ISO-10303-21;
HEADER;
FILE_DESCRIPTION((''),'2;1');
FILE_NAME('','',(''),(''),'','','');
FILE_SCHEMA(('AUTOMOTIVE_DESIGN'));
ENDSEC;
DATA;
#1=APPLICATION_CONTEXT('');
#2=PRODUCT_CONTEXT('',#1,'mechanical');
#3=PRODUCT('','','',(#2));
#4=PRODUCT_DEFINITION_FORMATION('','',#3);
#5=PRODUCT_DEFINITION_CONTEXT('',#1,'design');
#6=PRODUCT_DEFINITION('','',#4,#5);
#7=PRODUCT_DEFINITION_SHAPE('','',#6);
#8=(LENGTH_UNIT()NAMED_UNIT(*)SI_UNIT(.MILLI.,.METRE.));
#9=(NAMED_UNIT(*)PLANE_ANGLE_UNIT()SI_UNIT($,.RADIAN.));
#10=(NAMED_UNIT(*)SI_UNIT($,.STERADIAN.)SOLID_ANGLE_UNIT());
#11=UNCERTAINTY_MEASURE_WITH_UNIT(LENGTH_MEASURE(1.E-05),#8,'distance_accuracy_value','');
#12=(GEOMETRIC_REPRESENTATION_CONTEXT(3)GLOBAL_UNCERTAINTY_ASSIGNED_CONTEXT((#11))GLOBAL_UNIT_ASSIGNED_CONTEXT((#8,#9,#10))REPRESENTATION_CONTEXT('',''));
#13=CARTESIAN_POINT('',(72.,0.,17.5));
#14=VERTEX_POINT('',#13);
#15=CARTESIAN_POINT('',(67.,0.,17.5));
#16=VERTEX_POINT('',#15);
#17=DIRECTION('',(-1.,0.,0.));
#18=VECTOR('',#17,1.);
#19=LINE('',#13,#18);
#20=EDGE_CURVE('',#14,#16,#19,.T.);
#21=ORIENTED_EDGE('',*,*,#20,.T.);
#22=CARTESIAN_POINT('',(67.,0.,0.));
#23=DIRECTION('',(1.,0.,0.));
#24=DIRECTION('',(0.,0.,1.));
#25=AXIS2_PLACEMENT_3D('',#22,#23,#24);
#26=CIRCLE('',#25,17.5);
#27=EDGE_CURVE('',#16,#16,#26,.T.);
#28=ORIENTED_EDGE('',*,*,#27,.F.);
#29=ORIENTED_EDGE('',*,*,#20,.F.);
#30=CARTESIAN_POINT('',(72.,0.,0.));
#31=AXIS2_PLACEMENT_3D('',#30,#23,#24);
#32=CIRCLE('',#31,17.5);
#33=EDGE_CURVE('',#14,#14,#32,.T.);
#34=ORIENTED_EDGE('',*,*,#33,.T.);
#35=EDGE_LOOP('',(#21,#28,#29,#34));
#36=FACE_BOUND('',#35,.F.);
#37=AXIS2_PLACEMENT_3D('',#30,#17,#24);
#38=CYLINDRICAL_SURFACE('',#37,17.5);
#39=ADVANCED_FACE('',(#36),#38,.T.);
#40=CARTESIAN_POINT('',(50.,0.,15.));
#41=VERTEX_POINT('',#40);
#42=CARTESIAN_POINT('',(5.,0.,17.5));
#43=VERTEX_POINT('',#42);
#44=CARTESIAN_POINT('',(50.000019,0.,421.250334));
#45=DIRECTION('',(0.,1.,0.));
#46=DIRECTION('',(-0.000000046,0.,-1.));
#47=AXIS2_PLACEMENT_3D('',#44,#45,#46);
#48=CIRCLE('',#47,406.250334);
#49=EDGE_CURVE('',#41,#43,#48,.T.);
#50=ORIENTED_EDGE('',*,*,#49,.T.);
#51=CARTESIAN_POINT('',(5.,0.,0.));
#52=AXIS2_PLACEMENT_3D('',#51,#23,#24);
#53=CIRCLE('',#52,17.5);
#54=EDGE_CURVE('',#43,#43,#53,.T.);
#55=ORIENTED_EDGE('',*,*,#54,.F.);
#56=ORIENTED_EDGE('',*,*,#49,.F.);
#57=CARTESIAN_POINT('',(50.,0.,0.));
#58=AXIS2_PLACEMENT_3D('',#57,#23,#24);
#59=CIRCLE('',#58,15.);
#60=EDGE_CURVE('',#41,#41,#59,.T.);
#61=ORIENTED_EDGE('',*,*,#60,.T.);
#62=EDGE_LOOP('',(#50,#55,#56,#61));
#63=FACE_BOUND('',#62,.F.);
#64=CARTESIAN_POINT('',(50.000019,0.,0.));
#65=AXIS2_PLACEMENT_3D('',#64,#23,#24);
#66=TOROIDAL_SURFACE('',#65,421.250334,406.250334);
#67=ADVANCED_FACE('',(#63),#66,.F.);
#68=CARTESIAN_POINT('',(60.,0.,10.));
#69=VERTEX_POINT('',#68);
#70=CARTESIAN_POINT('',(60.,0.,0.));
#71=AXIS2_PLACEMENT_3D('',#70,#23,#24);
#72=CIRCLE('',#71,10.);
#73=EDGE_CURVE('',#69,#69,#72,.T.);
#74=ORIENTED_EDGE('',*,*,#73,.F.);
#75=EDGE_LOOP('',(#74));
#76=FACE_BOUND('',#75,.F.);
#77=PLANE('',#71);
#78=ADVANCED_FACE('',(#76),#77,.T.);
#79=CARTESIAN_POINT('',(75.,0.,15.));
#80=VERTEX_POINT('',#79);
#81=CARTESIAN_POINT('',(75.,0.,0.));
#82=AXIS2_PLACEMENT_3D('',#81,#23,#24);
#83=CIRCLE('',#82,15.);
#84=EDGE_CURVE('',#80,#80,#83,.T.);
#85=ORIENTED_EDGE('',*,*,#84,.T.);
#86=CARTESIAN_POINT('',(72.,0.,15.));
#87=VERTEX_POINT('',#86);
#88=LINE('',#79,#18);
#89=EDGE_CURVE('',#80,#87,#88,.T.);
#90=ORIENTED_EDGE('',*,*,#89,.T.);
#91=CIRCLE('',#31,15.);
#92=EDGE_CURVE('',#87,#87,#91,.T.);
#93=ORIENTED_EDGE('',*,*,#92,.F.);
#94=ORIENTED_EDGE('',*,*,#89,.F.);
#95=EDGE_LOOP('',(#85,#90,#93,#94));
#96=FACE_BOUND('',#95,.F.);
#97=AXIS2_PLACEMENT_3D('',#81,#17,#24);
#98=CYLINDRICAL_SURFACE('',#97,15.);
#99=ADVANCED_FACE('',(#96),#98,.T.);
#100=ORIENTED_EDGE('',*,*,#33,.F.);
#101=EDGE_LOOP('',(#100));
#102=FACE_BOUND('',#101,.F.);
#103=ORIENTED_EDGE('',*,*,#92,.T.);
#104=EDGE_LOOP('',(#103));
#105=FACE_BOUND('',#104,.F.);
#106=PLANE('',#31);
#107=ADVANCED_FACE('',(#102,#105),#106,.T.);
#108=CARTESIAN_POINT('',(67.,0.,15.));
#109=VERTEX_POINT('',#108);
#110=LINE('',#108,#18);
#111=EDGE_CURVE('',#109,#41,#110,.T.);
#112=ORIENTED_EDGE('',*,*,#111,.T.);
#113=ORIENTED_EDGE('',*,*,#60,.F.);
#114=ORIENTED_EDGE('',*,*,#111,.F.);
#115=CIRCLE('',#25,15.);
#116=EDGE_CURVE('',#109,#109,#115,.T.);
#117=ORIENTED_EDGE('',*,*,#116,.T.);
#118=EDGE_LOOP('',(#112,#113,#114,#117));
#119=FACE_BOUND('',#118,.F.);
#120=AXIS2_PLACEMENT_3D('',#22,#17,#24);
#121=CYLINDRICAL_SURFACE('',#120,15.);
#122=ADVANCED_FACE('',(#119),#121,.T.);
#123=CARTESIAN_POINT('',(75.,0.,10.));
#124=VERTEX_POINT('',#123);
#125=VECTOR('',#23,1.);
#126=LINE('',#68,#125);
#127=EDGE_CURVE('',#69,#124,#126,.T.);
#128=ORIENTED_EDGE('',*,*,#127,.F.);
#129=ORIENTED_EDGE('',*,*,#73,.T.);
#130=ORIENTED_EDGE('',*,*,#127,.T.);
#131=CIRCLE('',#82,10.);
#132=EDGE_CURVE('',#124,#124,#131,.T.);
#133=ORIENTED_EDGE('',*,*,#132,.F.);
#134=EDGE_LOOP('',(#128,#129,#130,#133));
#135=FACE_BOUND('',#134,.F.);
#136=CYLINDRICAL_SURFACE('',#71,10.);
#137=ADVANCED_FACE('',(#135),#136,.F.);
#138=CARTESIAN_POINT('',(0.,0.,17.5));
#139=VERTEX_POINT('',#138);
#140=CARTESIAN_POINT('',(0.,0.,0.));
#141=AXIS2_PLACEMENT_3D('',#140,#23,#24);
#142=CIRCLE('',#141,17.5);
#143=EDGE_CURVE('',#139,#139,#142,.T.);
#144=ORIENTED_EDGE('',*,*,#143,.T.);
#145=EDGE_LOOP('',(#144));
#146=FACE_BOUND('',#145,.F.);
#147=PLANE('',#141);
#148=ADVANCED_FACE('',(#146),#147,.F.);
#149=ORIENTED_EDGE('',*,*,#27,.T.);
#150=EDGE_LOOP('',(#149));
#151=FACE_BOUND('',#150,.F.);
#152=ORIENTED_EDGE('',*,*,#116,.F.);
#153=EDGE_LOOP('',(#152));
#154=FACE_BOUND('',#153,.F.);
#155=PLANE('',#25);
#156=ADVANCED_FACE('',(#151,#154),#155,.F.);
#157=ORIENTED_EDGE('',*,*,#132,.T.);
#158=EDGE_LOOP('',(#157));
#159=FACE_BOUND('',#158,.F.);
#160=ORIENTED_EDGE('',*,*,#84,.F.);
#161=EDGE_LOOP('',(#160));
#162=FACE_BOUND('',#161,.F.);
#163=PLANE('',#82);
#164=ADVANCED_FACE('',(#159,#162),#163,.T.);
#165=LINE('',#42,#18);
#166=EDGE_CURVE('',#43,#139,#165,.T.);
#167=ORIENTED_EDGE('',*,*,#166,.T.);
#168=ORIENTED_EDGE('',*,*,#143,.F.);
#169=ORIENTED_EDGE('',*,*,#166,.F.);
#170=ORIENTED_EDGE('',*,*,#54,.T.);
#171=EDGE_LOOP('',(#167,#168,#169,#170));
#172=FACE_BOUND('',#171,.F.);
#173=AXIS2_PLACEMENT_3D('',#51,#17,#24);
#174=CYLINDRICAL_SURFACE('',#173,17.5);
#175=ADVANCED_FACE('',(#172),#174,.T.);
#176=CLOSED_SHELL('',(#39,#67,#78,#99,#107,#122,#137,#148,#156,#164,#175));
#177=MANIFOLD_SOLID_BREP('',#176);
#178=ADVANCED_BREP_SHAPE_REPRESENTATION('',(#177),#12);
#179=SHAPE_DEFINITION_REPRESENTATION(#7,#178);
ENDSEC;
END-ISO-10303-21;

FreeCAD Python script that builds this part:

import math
import FreeCAD as App
import Part
import Sketcher

V = App.Vector

doc = App.newDocument("Part")
body = doc.addObject("PartDesign::Body", "Body")

sketch1 = body.newObject("Sketcher::SketchObject", "Sketch")
sketch1.AttachmentSupport = (doc.getObject("XZ_Plane"), [""])
sketch1.MapMode = "FlatFace"
sketch1.addGeometry(Part.LineSegment(V(0, 17.5, 0), V(0, 0, 0)), False)
sketch1.addGeometry(Part.LineSegment(V(0, 0, 0), V(60, 0, 0)), False)
sketch1.addGeometry(Part.LineSegment(V(60, 0, 0), V(60, 10, 0)), False)
sketch1.addGeometry(Part.LineSegment(V(60, 10, 0), V(75, 10, 0)), False)
sketch1.addGeometry(Part.LineSegment(V(75, 10, 0), V(75, 15, 0)), False)
sketch1.addGeometry(Part.LineSegment(V(75, 15, 0), V(72, 15, 0)), False)
sketch1.addGeometry(Part.LineSegment(V(72, 15, 0), V(72, 17.5, 0)), False)
sketch1.addGeometry(Part.LineSegment(V(72, 17.5, 0), V(67, 17.5, 0)), False)
sketch1.addGeometry(Part.LineSegment(V(67, 17.5, 0), V(67, 15, 0)), False)
sketch1.addGeometry(Part.LineSegment(V(67, 15, 0), V(50, 15, 0)), False)
sketch1.addGeometry(Part.ArcOfCircle(Part.Circle(V(50.000019, 421.250334, 0), V(0, 0, 1), 406.250334), math.radians(-96.359658), math.radians(-90.000003)), False)
sketch1.addGeometry(Part.LineSegment(V(5, 17.5, 0), V(0, 17.5, 0)), False)
sketch1.addConstraint(Sketcher.Constraint("Coincident", 0, 2, 1, 1))
sketch1.addConstraint(Sketcher.Constraint("Coincident", 1, 2, 2, 1))
sketch1.addConstraint(Sketcher.Constraint("Coincident", 2, 2, 3, 1))
sketch1.addConstraint(Sketcher.Constraint("Coincident", 3, 2, 4, 1))
sketch1.addConstraint(Sketcher.Constraint("Coincident", 4, 2, 5, 1))
sketch1.addConstraint(Sketcher.Constraint("Coincident", 5, 2, 6, 1))
sketch1.addConstraint(Sketcher.Constraint("Coincident", 6, 2, 7, 1))
sketch1.addConstraint(Sketcher.Constraint("Coincident", 7, 2, 8, 1))
sketch1.addConstraint(Sketcher.Constraint("Coincident", 8, 2, 9, 1))
sketch1.addConstraint(Sketcher.Constraint("Coincident", 9, 2, 10, 2))
sketch1.addConstraint(Sketcher.Constraint("Coincident", 10, 1, 11, 1))
sketch1.addConstraint(Sketcher.Constraint("Coincident", 11, 2, 0, 1))
sketch1.addConstraint(Sketcher.Constraint("Vertical", 0))
sketch1.addConstraint(Sketcher.Constraint("Horizontal", 1))
sketch1.addConstraint(Sketcher.Constraint("Vertical", 2))
sketch1.addConstraint(Sketcher.Constraint("Horizontal", 3))
sketch1.addConstraint(Sketcher.Constraint("Vertical", 4))
sketch1.addConstraint(Sketcher.Constraint("Horizontal", 5))
sketch1.addConstraint(Sketcher.Constraint("Vertical", 6))
sketch1.addConstraint(Sketcher.Constraint("Horizontal", 7))
sketch1.addConstraint(Sketcher.Constraint("Vertical", 8))
sketch1.addConstraint(Sketcher.Constraint("Horizontal", 9))
sketch1.addConstraint(Sketcher.Constraint("Horizontal", 11))
sketch1.addConstraint(Sketcher.Constraint("Coincident", 0, 2, -1, 1))
sketch1.addConstraint(Sketcher.Constraint("DistanceX", 1, 1, 1, 2, 60.0))
sketch1.addConstraint(Sketcher.Constraint("DistanceX", 3, 1, 3, 2, 15.0))
sketch1.addConstraint(Sketcher.Constraint("DistanceX", 5, 2, 5, 1, 3.0))
sketch1.addConstraint(Sketcher.Constraint("DistanceX", 7, 2, 7, 1, 5.0))
sketch1.addConstraint(Sketcher.Constraint("DistanceX", 9, 2, 9, 1, 17.0))
sketch1.addConstraint(Sketcher.Constraint("DistanceX", 11, 2, 11, 1, 5.0))
sketch1.addConstraint(Sketcher.Constraint("DistanceY", 2, 1, 2, 2, 10.0))
sketch1.addConstraint(Sketcher.Constraint("DistanceY", 4, 1, 4, 2, 5.0))
sketch1.addConstraint(Sketcher.Constraint("DistanceY", 0, 2, 0, 1, 17.5))
sketch1.addConstraint(Sketcher.Constraint("DistanceY", 6, 1, 6, 2, 2.5))
sketch1.addConstraint(Sketcher.Constraint("DistanceY", 8, 2, 8, 1, 2.5))
sketch1.addConstraint(Sketcher.Constraint("Radius", 10, 406.250334))
revolution = body.newObject("PartDesign::Revolution", "Revolution")
revolution.Profile = sketch1
revolution.ReferenceAxis = (sketch1, ["H_Axis"])
revolution.Angle = 360

doc.recompute()
